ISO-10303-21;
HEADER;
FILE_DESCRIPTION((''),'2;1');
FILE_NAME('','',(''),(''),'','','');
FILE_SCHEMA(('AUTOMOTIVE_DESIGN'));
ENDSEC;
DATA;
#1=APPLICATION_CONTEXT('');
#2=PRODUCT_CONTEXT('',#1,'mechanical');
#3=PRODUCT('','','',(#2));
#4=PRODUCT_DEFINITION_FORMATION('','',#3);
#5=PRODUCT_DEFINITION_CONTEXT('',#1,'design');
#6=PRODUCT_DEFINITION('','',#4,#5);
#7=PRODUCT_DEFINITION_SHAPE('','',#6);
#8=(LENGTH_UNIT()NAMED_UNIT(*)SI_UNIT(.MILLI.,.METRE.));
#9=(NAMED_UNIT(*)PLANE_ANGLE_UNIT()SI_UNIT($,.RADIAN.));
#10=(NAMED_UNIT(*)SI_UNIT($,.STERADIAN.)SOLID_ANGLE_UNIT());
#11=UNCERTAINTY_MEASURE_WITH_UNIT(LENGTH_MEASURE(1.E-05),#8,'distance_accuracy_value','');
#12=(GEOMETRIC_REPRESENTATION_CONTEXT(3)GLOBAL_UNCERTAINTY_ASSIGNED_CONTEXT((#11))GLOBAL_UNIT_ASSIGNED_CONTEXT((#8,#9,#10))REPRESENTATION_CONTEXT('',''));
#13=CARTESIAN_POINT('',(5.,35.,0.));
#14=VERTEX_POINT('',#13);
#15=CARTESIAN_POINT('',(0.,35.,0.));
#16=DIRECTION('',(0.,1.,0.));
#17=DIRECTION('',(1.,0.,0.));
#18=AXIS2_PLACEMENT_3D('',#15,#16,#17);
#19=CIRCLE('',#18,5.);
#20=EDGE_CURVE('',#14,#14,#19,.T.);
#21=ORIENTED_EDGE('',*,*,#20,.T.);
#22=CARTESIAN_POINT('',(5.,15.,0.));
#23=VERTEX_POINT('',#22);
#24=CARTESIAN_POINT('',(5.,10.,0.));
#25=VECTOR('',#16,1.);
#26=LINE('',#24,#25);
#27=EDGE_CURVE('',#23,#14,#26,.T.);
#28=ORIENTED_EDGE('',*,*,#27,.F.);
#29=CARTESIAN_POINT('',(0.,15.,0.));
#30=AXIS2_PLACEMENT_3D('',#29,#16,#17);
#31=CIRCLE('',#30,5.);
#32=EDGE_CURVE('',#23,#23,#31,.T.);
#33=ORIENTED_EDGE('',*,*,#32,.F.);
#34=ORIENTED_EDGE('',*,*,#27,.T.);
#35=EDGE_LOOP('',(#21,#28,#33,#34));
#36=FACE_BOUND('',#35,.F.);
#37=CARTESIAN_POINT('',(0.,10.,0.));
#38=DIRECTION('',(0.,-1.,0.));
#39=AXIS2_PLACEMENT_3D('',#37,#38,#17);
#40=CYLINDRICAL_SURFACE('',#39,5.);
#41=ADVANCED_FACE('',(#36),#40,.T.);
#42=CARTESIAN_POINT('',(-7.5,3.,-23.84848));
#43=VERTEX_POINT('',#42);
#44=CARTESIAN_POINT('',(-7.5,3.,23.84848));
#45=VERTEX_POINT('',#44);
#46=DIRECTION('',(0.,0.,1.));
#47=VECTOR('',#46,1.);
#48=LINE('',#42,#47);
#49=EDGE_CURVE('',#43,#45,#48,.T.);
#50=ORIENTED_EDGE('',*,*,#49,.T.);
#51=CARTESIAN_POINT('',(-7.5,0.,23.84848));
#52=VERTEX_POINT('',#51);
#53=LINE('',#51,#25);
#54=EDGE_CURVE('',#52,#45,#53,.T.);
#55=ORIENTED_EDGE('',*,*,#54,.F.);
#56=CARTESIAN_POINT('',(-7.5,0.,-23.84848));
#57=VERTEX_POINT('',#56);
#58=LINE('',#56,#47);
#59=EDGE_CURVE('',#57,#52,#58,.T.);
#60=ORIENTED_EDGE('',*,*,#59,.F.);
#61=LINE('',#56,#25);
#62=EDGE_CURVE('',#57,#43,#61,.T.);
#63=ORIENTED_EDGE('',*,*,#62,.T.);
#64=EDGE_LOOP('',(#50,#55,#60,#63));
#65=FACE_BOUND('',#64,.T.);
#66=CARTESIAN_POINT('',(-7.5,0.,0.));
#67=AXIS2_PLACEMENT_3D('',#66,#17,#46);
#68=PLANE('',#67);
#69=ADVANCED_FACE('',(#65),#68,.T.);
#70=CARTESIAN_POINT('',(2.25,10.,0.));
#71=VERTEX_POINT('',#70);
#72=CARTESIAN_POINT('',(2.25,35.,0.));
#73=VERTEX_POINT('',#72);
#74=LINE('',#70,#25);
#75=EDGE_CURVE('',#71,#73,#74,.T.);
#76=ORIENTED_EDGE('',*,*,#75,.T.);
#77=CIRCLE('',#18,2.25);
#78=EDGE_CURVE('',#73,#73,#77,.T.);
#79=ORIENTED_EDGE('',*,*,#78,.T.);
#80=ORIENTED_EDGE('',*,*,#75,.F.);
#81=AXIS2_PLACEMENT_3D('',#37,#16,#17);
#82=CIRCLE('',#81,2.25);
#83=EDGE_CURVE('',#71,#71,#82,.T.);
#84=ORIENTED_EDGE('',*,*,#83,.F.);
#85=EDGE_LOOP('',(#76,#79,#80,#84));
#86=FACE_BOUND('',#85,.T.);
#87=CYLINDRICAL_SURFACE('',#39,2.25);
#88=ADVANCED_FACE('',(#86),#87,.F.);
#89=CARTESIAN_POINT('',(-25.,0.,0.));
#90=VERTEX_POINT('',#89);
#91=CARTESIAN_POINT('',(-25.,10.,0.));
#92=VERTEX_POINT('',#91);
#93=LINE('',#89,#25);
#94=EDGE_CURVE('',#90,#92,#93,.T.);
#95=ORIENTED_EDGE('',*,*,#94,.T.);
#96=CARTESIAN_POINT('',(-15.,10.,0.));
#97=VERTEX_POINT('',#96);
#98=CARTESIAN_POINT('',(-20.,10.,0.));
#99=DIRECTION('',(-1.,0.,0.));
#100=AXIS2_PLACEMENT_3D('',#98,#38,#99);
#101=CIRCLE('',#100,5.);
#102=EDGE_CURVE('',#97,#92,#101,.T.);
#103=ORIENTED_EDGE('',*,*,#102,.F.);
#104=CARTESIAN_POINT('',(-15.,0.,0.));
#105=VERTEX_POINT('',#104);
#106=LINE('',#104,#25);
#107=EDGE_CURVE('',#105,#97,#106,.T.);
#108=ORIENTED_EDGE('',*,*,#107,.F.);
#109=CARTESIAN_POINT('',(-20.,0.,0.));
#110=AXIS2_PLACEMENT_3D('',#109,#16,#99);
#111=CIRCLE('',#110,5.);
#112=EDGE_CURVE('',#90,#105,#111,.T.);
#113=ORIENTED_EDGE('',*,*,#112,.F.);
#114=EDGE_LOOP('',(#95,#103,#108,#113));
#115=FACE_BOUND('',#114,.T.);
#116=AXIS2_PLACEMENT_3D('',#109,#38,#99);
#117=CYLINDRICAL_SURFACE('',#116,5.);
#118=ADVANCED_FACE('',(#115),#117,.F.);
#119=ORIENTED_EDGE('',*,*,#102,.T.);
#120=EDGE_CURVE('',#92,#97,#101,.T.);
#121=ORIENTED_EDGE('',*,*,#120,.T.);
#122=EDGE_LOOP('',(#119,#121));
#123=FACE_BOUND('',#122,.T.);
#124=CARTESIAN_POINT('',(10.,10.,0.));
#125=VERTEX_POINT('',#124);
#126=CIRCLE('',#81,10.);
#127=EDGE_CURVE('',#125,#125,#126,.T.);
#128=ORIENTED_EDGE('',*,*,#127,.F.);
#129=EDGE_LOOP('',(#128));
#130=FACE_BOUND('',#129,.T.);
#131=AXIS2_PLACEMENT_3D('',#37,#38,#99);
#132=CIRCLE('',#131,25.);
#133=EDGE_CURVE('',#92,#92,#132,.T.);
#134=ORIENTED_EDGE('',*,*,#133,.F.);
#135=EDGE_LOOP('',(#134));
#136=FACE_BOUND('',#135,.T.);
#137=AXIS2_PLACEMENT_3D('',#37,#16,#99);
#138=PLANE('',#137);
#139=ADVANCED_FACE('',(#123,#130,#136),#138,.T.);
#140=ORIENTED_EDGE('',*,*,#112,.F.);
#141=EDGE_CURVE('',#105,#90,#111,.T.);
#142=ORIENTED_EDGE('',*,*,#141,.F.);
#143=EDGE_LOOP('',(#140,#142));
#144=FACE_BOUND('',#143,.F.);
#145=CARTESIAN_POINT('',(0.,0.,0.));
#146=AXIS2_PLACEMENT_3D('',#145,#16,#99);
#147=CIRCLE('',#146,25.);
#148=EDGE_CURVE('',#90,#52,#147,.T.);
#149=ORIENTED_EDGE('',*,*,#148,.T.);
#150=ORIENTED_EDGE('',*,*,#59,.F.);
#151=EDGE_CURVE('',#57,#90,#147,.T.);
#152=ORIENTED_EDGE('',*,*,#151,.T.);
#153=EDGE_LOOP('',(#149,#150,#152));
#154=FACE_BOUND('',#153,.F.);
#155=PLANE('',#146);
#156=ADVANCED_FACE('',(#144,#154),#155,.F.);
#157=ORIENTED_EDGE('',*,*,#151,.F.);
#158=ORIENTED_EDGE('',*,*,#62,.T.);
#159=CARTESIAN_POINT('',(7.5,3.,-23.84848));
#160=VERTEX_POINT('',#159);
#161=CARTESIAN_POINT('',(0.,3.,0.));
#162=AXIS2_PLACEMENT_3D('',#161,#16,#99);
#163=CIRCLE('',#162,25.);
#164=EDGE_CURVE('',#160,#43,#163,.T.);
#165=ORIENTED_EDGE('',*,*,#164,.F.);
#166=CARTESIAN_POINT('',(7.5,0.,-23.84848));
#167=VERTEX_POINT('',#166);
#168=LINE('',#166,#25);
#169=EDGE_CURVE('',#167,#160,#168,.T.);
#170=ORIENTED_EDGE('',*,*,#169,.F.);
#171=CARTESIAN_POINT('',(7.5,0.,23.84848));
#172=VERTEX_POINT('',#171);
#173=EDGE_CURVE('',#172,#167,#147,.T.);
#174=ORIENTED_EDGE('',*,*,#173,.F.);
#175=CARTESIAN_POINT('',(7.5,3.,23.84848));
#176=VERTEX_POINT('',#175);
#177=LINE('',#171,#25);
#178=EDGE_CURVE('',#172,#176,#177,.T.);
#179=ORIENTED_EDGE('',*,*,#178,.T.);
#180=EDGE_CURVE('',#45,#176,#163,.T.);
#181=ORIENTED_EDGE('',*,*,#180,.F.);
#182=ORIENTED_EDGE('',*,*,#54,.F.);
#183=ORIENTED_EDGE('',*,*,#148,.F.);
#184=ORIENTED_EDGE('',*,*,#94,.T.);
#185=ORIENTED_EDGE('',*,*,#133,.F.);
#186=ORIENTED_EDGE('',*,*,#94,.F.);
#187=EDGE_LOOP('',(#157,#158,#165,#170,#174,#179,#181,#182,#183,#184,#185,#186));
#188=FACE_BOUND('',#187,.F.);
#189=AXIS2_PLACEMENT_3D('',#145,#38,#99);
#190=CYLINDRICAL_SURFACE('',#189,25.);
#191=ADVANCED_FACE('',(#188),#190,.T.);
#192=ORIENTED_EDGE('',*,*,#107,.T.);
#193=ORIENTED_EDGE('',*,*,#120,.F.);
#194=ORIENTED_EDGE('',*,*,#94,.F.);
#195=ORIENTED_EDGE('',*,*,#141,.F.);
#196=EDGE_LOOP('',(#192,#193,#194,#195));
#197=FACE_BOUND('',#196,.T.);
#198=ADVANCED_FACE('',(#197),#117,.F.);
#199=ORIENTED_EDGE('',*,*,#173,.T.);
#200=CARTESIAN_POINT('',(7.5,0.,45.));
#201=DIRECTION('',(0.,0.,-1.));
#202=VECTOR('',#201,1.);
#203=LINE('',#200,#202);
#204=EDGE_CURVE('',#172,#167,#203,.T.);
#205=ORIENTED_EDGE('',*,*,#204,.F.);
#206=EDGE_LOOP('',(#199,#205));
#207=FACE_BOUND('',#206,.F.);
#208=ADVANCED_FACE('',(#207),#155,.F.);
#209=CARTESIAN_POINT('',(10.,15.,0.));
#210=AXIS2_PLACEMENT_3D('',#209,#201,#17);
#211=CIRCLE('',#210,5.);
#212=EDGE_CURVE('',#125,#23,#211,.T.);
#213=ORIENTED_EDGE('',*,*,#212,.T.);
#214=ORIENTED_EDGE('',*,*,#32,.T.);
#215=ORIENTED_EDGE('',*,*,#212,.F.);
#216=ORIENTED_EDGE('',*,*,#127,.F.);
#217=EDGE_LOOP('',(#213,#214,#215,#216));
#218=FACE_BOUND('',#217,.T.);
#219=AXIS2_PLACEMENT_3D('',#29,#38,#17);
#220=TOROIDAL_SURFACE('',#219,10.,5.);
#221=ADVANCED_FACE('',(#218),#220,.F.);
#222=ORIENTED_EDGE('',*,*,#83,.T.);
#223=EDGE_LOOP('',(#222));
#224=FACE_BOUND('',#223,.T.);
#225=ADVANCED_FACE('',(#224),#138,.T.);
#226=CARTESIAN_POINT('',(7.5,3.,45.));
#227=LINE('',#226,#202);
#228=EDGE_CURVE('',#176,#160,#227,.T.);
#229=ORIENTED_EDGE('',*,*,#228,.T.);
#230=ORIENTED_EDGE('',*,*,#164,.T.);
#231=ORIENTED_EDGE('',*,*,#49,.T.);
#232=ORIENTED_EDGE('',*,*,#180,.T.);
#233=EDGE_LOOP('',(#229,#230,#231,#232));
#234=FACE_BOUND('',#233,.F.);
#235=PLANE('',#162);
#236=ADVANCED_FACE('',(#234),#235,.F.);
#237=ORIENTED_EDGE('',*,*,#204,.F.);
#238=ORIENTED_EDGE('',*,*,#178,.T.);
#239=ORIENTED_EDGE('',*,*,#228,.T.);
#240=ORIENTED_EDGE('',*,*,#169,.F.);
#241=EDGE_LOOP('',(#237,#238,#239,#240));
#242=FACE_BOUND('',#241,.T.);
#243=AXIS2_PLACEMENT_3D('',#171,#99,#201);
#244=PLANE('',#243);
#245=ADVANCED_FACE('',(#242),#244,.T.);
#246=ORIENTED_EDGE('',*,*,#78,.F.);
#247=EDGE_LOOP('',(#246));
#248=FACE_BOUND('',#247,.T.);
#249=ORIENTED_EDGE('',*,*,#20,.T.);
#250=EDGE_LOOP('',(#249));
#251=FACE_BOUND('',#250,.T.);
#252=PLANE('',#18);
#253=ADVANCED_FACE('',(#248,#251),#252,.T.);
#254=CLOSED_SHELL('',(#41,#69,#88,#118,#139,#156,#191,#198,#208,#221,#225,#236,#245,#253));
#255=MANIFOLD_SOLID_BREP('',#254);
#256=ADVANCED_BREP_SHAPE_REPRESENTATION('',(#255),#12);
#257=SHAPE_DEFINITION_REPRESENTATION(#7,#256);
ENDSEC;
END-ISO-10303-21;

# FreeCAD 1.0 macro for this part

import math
import FreeCAD as App
import Part
import Sketcher
from FreeCAD import Vector
Q = App.Units.Quantity


def edges_at(feature, points):
    """Names of the edges that pass closest to the given points."""
    edges = feature.Shape.Edges
    near = lambda p: min(range(len(edges)), key=lambda i: edges[i].distToShape(Part.Vertex(*p))[0])
    return sorted({f"Edge{near(p) + 1}" for p in points})

doc = App.newDocument("Part")
body = doc.addObject("PartDesign::Body", "Body")

sketch1 = doc.addObject("Sketcher::SketchObject", "Sketch")
body.addObject(sketch1)
sketch1.AttachmentSupport = (doc.XZ_Plane, [""])
sketch1.MapMode = "FlatFace"
sketch1.addGeometry(Part.Circle(Vector(0, 0, 0), Vector(0, 0, 1), 25), False)
sketch1.addConstraint(Sketcher.Constraint("Coincident", 0, 3, -1, 1))
sketch1.addConstraint(Sketcher.Constraint("Diameter", 0, Q("50 mm")))
pad1 = doc.addObject("PartDesign::Pad", "Pad")
body.addObject(pad1)
pad1.Profile = sketch1
pad1.Length = 10
pad1.Reversed = True

sketch2 = doc.addObject("Sketcher::SketchObject", "Sketch001")
body.addObject(sketch2)
sketch2.AttachmentSupport = (doc.XZ_Plane, [""])
sketch2.MapMode = "FlatFace"
sketch2.addGeometry(Part.Circle(Vector(-20, 0, 0), Vector(0, 0, 1), 5), False)
sketch2.addConstraint(Sketcher.Constraint("PointOnObject", 0, 3, -1))
sketch2.addConstraint(Sketcher.Constraint("Diameter", 0, Q("10 mm")))
sketch2.addConstraint(Sketcher.Constraint("DistanceX", 0, 3, -1, 1, Q("20 mm")))
pocket1 = doc.addObject("PartDesign::Pocket", "Pocket")
body.addObject(pocket1)
pocket1.Profile = sketch2
pocket1.Length = 25

sketch3 = doc.addObject("Sketcher::SketchObject", "Sketch002")
body.addObject(sketch3)
sketch3.AttachmentSupport = (doc.XZ_Plane, [""])
sketch3.MapMode = "FlatFace"
sketch3.addGeometry(Part.LineSegment(Vector(-8, -24, 0), Vector(-8, 24, 0)), False)
sketch3.addGeometry(Part.ArcOfCircle(Part.Circle(Vector(0, 0, 0), Vector(0, 0, 1), 25), math.radians(73), math.radians(107)), False)
sketch3.addGeometry(Part.LineSegment(Vector(8, 24, 0), Vector(8, -24, 0)), False)
sketch3.addGeometry(Part.ArcOfCircle(Part.Circle(Vector(0, 0, 0), Vector(0, 0, 1), 25), math.radians(-107), math.radians(-73)), False)
sketch3.addConstraint(Sketcher.Constraint("Coincident", 0, 2, 1, 2))
sketch3.addConstraint(Sketcher.Constraint("Coincident", 1, 1, 2, 1))
sketch3.addConstraint(Sketcher.Constraint("Coincident", 2, 2, 3, 2))
sketch3.addConstraint(Sketcher.Constraint("Coincident", 3, 1, 0, 1))
sketch3.addConstraint(Sketcher.Constraint("Vertical", 0))
sketch3.addConstraint(Sketcher.Constraint("Vertical", 2))
sketch3.addConstraint(Sketcher.Constraint("Coincident", 1, 3, -1, 1))
sketch3.addConstraint(Sketcher.Constraint("Coincident", 3, 3, -1, 1))
sketch3.addConstraint(Sketcher.Constraint("Equal", 1, 3))
sketch3.addConstraint(Sketcher.Constraint("Horizontal", 0, 2, 1, 1))
sketch3.addConstraint(Sketcher.Constraint("Radius", 1, Q("25 mm")))
sketch3.addConstraint(Sketcher.Constraint("DistanceX", 0, 2, 1, 1, Q("15 mm")))
pocket2 = doc.addObject("PartDesign::Pocket", "Pocket001")
body.addObject(pocket2)
pocket2.Profile = sketch3
pocket2.Length = 3

sketch4 = doc.addObject("Sketcher::SketchObject", "Sketch003")
body.addObject(sketch4)
sketch4.AttachmentSupport = (doc.XZ_Plane, [""])
sketch4.MapMode = "FlatFace"
sketch4.AttachmentOffset = App.Placement(Vector(0, 0, -10), App.Rotation())
sketch4.addGeometry(Part.Circle(Vector(0, 0, 0), Vector(0, 0, 1), 5), False)
sketch4.addGeometry(Part.Circle(Vector(0, 0, 0), Vector(0, 0, 1), 2.2), False)
sketch4.addConstraint(Sketcher.Constraint("Coincident", 0, 3, -1, 1))
sketch4.addConstraint(Sketcher.Constraint("Coincident", 1, 3, -1, 1))
sketch4.addConstraint(Sketcher.Constraint("Diameter", 0, Q("10 mm")))
sketch4.addConstraint(Sketcher.Constraint("Diameter", 1, Q("4.5 mm")))
pad2 = doc.addObject("PartDesign::Pad", "Pad001")
body.addObject(pad2)
pad2.Profile = sketch4
pad2.Length = 25
pad2.Reversed = True
doc.recompute()

fillet = doc.addObject("PartDesign::Fillet", "Fillet")
body.addObject(fillet)
fillet.Base = (pad2, edges_at(pad2, [(-5, 10, 0)]))
fillet.Radius = 5

doc.recompute()
